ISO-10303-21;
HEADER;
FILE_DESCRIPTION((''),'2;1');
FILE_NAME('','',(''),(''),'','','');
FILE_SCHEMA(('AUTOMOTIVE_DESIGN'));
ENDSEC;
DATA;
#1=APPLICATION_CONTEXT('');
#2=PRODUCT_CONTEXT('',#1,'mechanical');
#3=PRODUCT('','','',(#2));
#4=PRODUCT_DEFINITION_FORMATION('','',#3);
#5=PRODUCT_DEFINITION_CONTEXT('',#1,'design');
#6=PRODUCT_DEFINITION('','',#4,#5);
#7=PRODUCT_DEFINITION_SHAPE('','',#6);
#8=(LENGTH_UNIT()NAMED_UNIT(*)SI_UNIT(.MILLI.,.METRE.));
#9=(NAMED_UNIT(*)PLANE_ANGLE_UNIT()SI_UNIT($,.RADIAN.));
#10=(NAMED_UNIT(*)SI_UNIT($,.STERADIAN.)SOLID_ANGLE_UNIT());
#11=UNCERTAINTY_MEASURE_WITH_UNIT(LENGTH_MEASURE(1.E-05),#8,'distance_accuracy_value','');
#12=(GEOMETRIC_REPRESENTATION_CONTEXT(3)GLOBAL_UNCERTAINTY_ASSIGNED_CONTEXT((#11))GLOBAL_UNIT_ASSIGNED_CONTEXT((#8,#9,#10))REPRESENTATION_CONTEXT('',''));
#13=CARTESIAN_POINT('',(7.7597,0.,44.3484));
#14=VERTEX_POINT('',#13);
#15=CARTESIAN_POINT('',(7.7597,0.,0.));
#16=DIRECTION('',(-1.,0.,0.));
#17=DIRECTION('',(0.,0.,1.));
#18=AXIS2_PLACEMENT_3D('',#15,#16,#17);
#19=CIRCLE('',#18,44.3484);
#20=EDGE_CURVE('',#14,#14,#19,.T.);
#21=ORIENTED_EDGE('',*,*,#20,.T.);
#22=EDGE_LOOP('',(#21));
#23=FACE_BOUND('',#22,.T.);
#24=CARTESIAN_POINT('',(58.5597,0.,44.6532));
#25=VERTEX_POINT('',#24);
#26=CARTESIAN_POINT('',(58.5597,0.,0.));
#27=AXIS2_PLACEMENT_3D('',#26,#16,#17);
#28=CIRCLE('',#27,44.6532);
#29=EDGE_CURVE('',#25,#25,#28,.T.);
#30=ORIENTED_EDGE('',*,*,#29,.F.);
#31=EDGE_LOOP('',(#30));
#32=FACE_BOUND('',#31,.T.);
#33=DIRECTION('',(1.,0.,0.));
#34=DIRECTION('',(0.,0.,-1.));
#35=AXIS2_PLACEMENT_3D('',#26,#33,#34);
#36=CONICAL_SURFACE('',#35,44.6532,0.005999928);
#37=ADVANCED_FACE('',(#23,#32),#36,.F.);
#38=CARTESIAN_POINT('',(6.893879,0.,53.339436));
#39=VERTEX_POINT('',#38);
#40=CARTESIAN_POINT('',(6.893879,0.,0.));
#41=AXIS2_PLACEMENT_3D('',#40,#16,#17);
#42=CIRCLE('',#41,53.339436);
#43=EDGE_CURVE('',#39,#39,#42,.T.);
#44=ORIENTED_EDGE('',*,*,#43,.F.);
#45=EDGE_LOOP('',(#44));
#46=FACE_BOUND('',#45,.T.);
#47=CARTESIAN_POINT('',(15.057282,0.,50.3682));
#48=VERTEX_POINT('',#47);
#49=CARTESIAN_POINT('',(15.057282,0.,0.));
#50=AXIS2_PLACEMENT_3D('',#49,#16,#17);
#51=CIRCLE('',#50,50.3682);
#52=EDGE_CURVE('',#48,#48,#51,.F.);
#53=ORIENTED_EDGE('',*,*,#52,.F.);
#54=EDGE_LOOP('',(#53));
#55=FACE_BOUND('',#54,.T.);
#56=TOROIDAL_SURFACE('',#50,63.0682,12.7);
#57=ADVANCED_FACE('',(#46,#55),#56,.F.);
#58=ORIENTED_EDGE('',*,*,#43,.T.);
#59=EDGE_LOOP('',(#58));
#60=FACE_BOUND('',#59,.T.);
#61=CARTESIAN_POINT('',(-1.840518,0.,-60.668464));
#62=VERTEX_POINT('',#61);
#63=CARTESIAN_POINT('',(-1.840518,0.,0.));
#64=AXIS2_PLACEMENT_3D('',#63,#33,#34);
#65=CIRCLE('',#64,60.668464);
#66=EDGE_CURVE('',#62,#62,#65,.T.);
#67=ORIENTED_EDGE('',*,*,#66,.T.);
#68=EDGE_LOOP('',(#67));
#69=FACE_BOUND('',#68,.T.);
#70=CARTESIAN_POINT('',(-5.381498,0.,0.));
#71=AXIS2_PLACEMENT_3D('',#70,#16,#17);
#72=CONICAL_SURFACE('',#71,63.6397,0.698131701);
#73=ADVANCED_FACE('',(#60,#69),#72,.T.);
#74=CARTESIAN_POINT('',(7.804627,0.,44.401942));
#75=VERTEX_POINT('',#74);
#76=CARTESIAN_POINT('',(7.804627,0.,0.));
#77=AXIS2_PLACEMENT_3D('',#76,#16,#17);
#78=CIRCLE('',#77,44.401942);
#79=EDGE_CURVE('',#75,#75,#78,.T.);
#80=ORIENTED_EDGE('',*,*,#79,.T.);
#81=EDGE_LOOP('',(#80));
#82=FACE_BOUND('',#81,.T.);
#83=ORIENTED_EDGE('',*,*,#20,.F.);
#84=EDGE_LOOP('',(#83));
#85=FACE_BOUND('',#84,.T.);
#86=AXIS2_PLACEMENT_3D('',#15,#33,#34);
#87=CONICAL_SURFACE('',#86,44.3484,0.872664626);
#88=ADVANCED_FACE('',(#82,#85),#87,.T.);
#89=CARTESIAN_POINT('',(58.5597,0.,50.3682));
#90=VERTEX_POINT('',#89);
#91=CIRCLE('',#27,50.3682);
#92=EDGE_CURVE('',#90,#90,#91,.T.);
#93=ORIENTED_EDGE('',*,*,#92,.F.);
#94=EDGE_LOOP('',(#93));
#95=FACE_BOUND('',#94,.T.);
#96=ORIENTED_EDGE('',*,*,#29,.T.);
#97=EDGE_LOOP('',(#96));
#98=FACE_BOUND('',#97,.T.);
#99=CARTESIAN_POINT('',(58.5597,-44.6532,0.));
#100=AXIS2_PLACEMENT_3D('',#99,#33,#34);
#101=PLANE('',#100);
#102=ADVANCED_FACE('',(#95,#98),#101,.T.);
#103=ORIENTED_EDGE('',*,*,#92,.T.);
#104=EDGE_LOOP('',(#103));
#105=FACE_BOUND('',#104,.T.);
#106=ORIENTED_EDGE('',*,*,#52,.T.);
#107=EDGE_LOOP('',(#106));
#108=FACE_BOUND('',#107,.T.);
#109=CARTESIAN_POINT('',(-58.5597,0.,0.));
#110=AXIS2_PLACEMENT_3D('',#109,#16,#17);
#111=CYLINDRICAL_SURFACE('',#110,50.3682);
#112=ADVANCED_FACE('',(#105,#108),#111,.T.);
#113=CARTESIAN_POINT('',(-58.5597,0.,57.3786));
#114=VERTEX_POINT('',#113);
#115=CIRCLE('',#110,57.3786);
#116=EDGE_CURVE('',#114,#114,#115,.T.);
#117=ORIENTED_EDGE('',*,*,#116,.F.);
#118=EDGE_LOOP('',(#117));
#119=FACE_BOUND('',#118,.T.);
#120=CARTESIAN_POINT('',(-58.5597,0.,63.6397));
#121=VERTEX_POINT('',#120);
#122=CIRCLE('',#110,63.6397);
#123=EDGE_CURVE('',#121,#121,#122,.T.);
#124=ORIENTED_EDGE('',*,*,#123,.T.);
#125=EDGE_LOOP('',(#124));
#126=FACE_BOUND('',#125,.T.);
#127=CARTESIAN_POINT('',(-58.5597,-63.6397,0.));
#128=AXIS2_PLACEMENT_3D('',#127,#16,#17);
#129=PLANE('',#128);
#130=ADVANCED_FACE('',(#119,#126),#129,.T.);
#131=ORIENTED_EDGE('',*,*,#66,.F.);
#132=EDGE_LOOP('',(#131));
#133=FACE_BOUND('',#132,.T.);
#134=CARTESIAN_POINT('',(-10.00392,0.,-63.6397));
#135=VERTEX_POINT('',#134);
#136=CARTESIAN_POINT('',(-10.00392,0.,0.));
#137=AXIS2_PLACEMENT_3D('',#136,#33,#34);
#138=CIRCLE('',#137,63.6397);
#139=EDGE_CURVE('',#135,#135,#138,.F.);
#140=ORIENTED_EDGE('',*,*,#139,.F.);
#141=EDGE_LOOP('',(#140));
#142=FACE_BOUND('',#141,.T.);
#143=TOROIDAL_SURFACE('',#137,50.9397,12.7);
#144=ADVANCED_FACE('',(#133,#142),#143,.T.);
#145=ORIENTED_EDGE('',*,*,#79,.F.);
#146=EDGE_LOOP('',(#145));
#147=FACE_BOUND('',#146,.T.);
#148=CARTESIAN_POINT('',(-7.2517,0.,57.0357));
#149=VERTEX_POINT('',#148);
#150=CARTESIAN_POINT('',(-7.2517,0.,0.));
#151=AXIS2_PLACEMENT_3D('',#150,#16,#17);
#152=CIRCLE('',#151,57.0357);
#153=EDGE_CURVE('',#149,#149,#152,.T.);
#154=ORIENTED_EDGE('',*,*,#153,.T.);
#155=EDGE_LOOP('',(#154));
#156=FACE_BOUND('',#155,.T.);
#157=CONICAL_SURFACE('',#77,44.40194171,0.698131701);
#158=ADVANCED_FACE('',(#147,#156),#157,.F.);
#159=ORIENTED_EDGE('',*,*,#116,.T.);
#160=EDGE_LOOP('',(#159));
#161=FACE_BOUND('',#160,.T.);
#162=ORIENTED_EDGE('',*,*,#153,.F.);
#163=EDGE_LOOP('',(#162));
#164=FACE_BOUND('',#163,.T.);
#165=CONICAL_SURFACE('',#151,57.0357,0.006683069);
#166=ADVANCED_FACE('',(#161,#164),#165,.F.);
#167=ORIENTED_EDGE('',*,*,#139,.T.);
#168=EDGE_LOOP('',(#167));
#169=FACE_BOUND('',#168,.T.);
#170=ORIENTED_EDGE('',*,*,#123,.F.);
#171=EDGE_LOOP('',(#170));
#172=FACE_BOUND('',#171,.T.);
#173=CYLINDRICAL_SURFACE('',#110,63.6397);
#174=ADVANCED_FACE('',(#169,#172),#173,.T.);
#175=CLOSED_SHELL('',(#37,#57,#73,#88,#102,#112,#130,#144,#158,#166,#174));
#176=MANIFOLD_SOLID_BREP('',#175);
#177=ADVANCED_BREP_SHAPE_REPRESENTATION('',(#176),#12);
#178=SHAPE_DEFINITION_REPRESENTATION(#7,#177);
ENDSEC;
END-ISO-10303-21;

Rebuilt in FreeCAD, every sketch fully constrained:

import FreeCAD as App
import Part
import Sketcher

V = App.Vector
Q = App.Units.Quantity


def edges_at(feature, points):
    """Names of the edges that pass closest to the given points."""
    edges = feature.Shape.Edges
    near = lambda p: min(range(len(edges)), key=lambda i: edges[i].distToShape(Part.Vertex(*p))[0])
    return sorted({f"Edge{near(p) + 1}" for p in points})


def add_polygon(sketch, points):
    """Adds a closed chain of lines whose ends are joined by coincident constraints."""
    first, n = sketch.GeometryCount, len(points)
    for a, b in zip(points, points[1:] + points[:1]):
        sketch.addGeometry(Part.LineSegment(App.Vector(*a, 0), App.Vector(*b, 0)), False)
    for i in range(n):
        sketch.addConstraint(Sketcher.Constraint("Coincident", first + i, 2, first + (i + 1) % n, 1))

doc = App.newDocument("Part")
body = doc.addObject("PartDesign::Body", "Body")

sketch1 = body.newObject("Sketcher::SketchObject", "Sketch")
sketch1.AttachmentSupport = (doc.getObject("XY_Plane"), [""])
sketch1.MapMode = "FlatFace"
add_polygon(sketch1, [(7.8, -44.4), (-7.25, -57.04), (-58.56, -57.38), (-58.56, -63.64), (-5.38, -63.64), (10.43, -50.37), (58.56, -50.37), (58.56, -44.65), (7.76, -44.35)])
sketch1.addConstraint([
    Sketcher.Constraint("Vertical", 2),
    Sketcher.Constraint("Horizontal", 3),
    Sketcher.Constraint("Horizontal", 5),
    Sketcher.Constraint("Vertical", 6),
    Sketcher.Constraint("Parallel", 0, 4),
    Sketcher.Constraint("Perpendicular", 4, 8),
    Sketcher.Constraint("Angle", 0, Q("-140 deg")),
    Sketcher.Constraint("DistanceX", 7, 2, 6, 2, Q("2 in")),
    Sketcher.Constraint("DistanceY", 6, 1, 6, 2, Q("0.225 in")),
    Sketcher.Constraint("DistanceX", 1, 2, 0, 2, Q("2.02 in")),
    Sketcher.Constraint("DistanceY", 2, 2, 0, 2, Q("0.26 in")),
    Sketcher.Constraint("DistanceY", 2, 2, 2, 1, Q("0.2465 in")),
    Sketcher.Constraint("DistanceY", 1, 2, -1, 1, Q("2.259 in")),
    Sketcher.Constraint("DistanceY", 4, 2, -1, 1, Q("1.983 in")),
    Sketcher.Constraint("DistanceY", 7, 2, -1, 1, Q("1.746 in")),
    Sketcher.Constraint("DistanceX", 0, 2, 5, 2, Q("2.591 in")),
    Sketcher.Constraint("DistanceX", 3, 1, 3, 2, Q("53.178202 mm")),
    Sketcher.Constraint("DistanceX", 0, 2, -1, 1, Q("0.2855 in")),
])
revolution = body.newObject("PartDesign::Revolution", "Revolution")
revolution.Profile = sketch1
revolution.ReferenceAxis = (sketch1, ["H_Axis"])
revolution.Angle = 360
doc.recompute()

fillet = body.newObject("PartDesign::Fillet", "Fillet")
fillet.Base = (revolution, edges_at(revolution, [(-5.381, 63.64, 0), (10.435, 50.368, 0)]))
fillet.Radius = Q("0.5 in")

doc.recompute()
